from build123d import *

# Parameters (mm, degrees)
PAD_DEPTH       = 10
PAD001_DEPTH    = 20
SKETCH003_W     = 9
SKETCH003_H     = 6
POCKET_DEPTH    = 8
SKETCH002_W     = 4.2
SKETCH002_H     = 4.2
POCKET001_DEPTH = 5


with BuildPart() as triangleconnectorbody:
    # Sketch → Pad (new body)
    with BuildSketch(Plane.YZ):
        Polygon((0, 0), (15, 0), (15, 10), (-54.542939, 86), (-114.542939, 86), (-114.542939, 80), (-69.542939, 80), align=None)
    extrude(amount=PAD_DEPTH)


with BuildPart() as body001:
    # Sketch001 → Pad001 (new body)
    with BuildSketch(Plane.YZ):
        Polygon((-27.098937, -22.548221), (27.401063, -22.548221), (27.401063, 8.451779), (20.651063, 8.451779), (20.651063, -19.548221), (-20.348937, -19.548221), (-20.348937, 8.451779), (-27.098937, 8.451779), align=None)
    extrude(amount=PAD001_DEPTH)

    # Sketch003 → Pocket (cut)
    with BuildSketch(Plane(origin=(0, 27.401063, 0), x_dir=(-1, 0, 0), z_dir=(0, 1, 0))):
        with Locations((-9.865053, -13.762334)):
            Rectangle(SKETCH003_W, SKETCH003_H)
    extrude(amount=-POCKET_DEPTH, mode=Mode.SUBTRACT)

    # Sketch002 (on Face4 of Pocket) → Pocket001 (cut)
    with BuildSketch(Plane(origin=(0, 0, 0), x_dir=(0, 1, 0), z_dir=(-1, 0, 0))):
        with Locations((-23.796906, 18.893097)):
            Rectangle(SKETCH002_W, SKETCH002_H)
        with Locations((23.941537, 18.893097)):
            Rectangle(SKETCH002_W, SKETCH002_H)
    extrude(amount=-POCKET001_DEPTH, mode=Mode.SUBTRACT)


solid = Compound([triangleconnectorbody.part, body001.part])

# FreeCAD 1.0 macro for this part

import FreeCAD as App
import Part
import Sketcher
from FreeCAD import Vector
Q = App.Units.Quantity


def add_polygon(sketch, points):
    """Adds a closed chain of lines whose ends are joined by coincident constraints."""
    first, n = sketch.GeometryCount, len(points)
    for a, b in zip(points, points[1:] + points[:1]):
        sketch.addGeometry(Part.LineSegment(App.Vector(*a, 0), App.Vector(*b, 0)), False)
    for i in range(n):
        sketch.addConstraint(Sketcher.Constraint("Coincident", first + i, 2, first + (i + 1) % n, 1))

doc = App.newDocument("Part")
params = doc.addObject("Spreadsheet::Sheet", "Params")
for row, (alias, value) in enumerate([
    ("sketch1_width", "15 mm"),
    ("sketch1_width2", "60 mm"),
    ("sketch1_width3", "45 mm"),
    ("sketch1_height", "10 mm"),
    ("sketch1_height2", "6 mm"),
    ("pad1_length", "10 mm"),
    ("sketch2_width", "41 mm"),
    ("sketch2_height", "31 mm"),
    ("sketch2_height2", "28 mm"),
    ("sketch2_width2", "54.5 mm"),
    ("pad2_length", "20 mm"),
    ("sketch3_width", "9 mm"),
    ("sketch3_height", "6 mm"),
    ("pocket1_length", "8 mm"),
    ("sketch4_width", "4.2 mm"),
    ("pocket2_length", "5 mm"),
], start=1):
    params.set(f"A{row}", alias)
    params.set(f"B{row}", "=" + value)
    params.setAlias(f"B{row}", alias)

body = doc.addObject("PartDesign::Body", "Body")

# Sketch on YZ plane
sketch1 = body.newObject("Sketcher::SketchObject", "Sketch")
sketch1.AttachmentSupport = (doc.getObject("YZ_Plane"), [""])
sketch1.MapMode = "FlatFace"
add_polygon(sketch1, [(0, 0), (15, 0), (15, 10), (-55, 86), (-115, 86), (-115, 80), (-70, 80)])  # lines 0-6
sketch1.addConstraint([
    Sketcher.Constraint("Horizontal", 0),
    Sketcher.Constraint("Vertical", 1),
    Sketcher.Constraint("Horizontal", 3),
    Sketcher.Constraint("Vertical", 4),
    Sketcher.Constraint("Horizontal", 5),
    Sketcher.Constraint("Coincident", 6, 2, -1, 1),
    Sketcher.Constraint("DistanceX", 0, 1, 0, 2, 15.0),
    Sketcher.Constraint("DistanceX", 3, 2, 3, 1, 60.0),
    Sketcher.Constraint("DistanceX", 5, 1, 5, 2, 45.0),
    Sketcher.Constraint("DistanceY", 1, 1, 1, 2, 10.0),
    Sketcher.Constraint("DistanceY", 4, 2, 4, 1, 6.0),
    Sketcher.Constraint("Angle", 6, Q("-49 deg")),
    Sketcher.Constraint("DistanceY", -1, 1, 2, 2, 86.0),
])
sketch1.setExpression("Constraints[13]", "Params.sketch1_width")
sketch1.setExpression("Constraints[14]", "Params.sketch1_width2")
sketch1.setExpression("Constraints[15]", "Params.sketch1_width3")
sketch1.setExpression("Constraints[16]", "Params.sketch1_height")
sketch1.setExpression("Constraints[17]", "Params.sketch1_height2")
pad1 = body.newObject("PartDesign::Pad", "Pad")
pad1.Profile = sketch1
pad1.setExpression("Length", "Params.pad1_length")
body2 = doc.addObject("PartDesign::Body", "Body001")

# Sketch on YZ plane
sketch2 = body2.newObject("Sketcher::SketchObject", "Sketch001")
sketch2.AttachmentSupport = (doc.getObject("YZ_Plane001"), [""])
sketch2.MapMode = "FlatFace"
add_polygon(sketch2, [(-27, -23), (27, -23), (27, 8), (21, 8), (21, -20), (-20, -20), (-20, 8), (-27, 8)])  # lines 0-7
sketch2.addConstraint([
    Sketcher.Constraint("Horizontal", 0),
    Sketcher.Constraint("Vertical", 1),
    Sketcher.Constraint("Horizontal", 2),
    Sketcher.Constraint("Vertical", 3),
    Sketcher.Constraint("Horizontal", 4),
    Sketcher.Constraint("Vertical", 5),
    Sketcher.Constraint("Horizontal", 6),
    Sketcher.Constraint("Vertical", 7),
    Sketcher.Constraint("Horizontal", 2, 2, 5, 2),
    Sketcher.Constraint("Equal", 2, 6),
    Sketcher.Constraint("DistanceX", 4, 2, 4, 1, 41.0),
    Sketcher.Constraint("DistanceY", 1, 1, 1, 2, 31.0),
    Sketcher.Constraint("DistanceY", 3, 2, 3, 1, 28.0),
    Sketcher.Constraint("DistanceX", 0, 1, 0, 2, 54.5),
    Sketcher.Constraint("DistanceY", 0, 2, -1, 1, 22.548221),
    Sketcher.Constraint("DistanceX", -1, 1, 0, 2, 27.401063),
])
sketch2.setExpression("Constraints[18]", "Params.sketch2_width")
sketch2.setExpression("Constraints[19]", "Params.sketch2_height")
sketch2.setExpression("Constraints[20]", "Params.sketch2_height2")
sketch2.setExpression("Constraints[21]", "Params.sketch2_width2")
pad2 = body2.newObject("PartDesign::Pad", "Pad001")
pad2.Profile = sketch2
pad2.setExpression("Length", "Params.pad2_length")

# Sketch on XZ plane
sketch3 = body2.newObject("Sketcher::SketchObject", "Sketch002")
sketch3.AttachmentSupport = (doc.getObject("XZ_Plane001"), [""])
sketch3.MapMode = "FlatFace"
sketch3.AttachmentOffset = App.Placement(Vector(0, 0, -27.401063), App.Rotation())
add_polygon(sketch3, [(14, -11), (14, -17), (5, -17), (5, -11)])  # lines 0-3
sketch3.addConstraint([
    Sketcher.Constraint("Vertical", 0),
    Sketcher.Constraint("Horizontal", 1),
    Sketcher.Constraint("Vertical", 2),
    Sketcher.Constraint("Horizontal", 3),
    Sketcher.Constraint("DistanceX", 1, 2, 1, 1, 9.0),
    Sketcher.Constraint("DistanceY", 0, 2, 0, 1, 6.0),
    Sketcher.Constraint("DistanceX", -1, 1, 0, 2, 14.365053),
    Sketcher.Constraint("DistanceY", 0, 2, -1, 1, 16.762334),
])
sketch3.setExpression("Constraints[8]", "Params.sketch3_width")
sketch3.setExpression("Constraints[9]", "Params.sketch3_height")
pocket1 = body2.newObject("PartDesign::Pocket", "Pocket")
pocket1.Profile = sketch3
pocket1.setExpression("Length", "Params.pocket1_length")
pocket1.Reversed = True

# Sketch on YZ plane
sketch4 = body2.newObject("Sketcher::SketchObject", "Sketch003")
sketch4.AttachmentSupport = (doc.getObject("YZ_Plane001"), [""])
sketch4.MapMode = "FlatFace"
add_polygon(sketch4, [(-25.9, -21), (-25.9, -16.8), (-21.7, -16.8), (-21.7, -21)])  # lines 0-3
add_polygon(sketch4, [(21.8, -21), (21.8, -16.8), (26, -16.8), (26, -21)])  # lines 4-7
sketch4.addConstraint([
    Sketcher.Constraint("Vertical", 0),
    Sketcher.Constraint("Horizontal", 1),
    Sketcher.Constraint("Vertical", 2),
    Sketcher.Constraint("Horizontal", 3),
    Sketcher.Constraint("Vertical", 4),
    Sketcher.Constraint("Horizontal", 5),
    Sketcher.Constraint("Vertical", 6),
    Sketcher.Constraint("Horizontal", 7),
    Sketcher.Constraint("Horizontal", 1, 2, 4, 2),
    Sketcher.Constraint("Horizontal", 3, 2, 6, 2),
    Sketcher.Constraint("Equal", 3, 5),
    Sketcher.Constraint("Equal", 7, 0),
    Sketcher.Constraint("DistanceX", 1, 1, 1, 2, 4.2),
    Sketcher.Constraint("DistanceX", 0, 2, -1, 1, 25.896906),
    Sketcher.Constraint("DistanceY", 0, 2, -1, 1, 16.793097),
    Sketcher.Constraint("DistanceX", -1, 1, 4, 2, 21.841537),
])
sketch4.setExpression("Constraints[20]", "Params.sketch4_width")
pocket2 = body2.newObject("PartDesign::Pocket", "Pocket001")
pocket2.Profile = sketch4
pocket2.setExpression("Length", "Params.pocket2_length")
pocket2.Reversed = True

doc.recompute()
